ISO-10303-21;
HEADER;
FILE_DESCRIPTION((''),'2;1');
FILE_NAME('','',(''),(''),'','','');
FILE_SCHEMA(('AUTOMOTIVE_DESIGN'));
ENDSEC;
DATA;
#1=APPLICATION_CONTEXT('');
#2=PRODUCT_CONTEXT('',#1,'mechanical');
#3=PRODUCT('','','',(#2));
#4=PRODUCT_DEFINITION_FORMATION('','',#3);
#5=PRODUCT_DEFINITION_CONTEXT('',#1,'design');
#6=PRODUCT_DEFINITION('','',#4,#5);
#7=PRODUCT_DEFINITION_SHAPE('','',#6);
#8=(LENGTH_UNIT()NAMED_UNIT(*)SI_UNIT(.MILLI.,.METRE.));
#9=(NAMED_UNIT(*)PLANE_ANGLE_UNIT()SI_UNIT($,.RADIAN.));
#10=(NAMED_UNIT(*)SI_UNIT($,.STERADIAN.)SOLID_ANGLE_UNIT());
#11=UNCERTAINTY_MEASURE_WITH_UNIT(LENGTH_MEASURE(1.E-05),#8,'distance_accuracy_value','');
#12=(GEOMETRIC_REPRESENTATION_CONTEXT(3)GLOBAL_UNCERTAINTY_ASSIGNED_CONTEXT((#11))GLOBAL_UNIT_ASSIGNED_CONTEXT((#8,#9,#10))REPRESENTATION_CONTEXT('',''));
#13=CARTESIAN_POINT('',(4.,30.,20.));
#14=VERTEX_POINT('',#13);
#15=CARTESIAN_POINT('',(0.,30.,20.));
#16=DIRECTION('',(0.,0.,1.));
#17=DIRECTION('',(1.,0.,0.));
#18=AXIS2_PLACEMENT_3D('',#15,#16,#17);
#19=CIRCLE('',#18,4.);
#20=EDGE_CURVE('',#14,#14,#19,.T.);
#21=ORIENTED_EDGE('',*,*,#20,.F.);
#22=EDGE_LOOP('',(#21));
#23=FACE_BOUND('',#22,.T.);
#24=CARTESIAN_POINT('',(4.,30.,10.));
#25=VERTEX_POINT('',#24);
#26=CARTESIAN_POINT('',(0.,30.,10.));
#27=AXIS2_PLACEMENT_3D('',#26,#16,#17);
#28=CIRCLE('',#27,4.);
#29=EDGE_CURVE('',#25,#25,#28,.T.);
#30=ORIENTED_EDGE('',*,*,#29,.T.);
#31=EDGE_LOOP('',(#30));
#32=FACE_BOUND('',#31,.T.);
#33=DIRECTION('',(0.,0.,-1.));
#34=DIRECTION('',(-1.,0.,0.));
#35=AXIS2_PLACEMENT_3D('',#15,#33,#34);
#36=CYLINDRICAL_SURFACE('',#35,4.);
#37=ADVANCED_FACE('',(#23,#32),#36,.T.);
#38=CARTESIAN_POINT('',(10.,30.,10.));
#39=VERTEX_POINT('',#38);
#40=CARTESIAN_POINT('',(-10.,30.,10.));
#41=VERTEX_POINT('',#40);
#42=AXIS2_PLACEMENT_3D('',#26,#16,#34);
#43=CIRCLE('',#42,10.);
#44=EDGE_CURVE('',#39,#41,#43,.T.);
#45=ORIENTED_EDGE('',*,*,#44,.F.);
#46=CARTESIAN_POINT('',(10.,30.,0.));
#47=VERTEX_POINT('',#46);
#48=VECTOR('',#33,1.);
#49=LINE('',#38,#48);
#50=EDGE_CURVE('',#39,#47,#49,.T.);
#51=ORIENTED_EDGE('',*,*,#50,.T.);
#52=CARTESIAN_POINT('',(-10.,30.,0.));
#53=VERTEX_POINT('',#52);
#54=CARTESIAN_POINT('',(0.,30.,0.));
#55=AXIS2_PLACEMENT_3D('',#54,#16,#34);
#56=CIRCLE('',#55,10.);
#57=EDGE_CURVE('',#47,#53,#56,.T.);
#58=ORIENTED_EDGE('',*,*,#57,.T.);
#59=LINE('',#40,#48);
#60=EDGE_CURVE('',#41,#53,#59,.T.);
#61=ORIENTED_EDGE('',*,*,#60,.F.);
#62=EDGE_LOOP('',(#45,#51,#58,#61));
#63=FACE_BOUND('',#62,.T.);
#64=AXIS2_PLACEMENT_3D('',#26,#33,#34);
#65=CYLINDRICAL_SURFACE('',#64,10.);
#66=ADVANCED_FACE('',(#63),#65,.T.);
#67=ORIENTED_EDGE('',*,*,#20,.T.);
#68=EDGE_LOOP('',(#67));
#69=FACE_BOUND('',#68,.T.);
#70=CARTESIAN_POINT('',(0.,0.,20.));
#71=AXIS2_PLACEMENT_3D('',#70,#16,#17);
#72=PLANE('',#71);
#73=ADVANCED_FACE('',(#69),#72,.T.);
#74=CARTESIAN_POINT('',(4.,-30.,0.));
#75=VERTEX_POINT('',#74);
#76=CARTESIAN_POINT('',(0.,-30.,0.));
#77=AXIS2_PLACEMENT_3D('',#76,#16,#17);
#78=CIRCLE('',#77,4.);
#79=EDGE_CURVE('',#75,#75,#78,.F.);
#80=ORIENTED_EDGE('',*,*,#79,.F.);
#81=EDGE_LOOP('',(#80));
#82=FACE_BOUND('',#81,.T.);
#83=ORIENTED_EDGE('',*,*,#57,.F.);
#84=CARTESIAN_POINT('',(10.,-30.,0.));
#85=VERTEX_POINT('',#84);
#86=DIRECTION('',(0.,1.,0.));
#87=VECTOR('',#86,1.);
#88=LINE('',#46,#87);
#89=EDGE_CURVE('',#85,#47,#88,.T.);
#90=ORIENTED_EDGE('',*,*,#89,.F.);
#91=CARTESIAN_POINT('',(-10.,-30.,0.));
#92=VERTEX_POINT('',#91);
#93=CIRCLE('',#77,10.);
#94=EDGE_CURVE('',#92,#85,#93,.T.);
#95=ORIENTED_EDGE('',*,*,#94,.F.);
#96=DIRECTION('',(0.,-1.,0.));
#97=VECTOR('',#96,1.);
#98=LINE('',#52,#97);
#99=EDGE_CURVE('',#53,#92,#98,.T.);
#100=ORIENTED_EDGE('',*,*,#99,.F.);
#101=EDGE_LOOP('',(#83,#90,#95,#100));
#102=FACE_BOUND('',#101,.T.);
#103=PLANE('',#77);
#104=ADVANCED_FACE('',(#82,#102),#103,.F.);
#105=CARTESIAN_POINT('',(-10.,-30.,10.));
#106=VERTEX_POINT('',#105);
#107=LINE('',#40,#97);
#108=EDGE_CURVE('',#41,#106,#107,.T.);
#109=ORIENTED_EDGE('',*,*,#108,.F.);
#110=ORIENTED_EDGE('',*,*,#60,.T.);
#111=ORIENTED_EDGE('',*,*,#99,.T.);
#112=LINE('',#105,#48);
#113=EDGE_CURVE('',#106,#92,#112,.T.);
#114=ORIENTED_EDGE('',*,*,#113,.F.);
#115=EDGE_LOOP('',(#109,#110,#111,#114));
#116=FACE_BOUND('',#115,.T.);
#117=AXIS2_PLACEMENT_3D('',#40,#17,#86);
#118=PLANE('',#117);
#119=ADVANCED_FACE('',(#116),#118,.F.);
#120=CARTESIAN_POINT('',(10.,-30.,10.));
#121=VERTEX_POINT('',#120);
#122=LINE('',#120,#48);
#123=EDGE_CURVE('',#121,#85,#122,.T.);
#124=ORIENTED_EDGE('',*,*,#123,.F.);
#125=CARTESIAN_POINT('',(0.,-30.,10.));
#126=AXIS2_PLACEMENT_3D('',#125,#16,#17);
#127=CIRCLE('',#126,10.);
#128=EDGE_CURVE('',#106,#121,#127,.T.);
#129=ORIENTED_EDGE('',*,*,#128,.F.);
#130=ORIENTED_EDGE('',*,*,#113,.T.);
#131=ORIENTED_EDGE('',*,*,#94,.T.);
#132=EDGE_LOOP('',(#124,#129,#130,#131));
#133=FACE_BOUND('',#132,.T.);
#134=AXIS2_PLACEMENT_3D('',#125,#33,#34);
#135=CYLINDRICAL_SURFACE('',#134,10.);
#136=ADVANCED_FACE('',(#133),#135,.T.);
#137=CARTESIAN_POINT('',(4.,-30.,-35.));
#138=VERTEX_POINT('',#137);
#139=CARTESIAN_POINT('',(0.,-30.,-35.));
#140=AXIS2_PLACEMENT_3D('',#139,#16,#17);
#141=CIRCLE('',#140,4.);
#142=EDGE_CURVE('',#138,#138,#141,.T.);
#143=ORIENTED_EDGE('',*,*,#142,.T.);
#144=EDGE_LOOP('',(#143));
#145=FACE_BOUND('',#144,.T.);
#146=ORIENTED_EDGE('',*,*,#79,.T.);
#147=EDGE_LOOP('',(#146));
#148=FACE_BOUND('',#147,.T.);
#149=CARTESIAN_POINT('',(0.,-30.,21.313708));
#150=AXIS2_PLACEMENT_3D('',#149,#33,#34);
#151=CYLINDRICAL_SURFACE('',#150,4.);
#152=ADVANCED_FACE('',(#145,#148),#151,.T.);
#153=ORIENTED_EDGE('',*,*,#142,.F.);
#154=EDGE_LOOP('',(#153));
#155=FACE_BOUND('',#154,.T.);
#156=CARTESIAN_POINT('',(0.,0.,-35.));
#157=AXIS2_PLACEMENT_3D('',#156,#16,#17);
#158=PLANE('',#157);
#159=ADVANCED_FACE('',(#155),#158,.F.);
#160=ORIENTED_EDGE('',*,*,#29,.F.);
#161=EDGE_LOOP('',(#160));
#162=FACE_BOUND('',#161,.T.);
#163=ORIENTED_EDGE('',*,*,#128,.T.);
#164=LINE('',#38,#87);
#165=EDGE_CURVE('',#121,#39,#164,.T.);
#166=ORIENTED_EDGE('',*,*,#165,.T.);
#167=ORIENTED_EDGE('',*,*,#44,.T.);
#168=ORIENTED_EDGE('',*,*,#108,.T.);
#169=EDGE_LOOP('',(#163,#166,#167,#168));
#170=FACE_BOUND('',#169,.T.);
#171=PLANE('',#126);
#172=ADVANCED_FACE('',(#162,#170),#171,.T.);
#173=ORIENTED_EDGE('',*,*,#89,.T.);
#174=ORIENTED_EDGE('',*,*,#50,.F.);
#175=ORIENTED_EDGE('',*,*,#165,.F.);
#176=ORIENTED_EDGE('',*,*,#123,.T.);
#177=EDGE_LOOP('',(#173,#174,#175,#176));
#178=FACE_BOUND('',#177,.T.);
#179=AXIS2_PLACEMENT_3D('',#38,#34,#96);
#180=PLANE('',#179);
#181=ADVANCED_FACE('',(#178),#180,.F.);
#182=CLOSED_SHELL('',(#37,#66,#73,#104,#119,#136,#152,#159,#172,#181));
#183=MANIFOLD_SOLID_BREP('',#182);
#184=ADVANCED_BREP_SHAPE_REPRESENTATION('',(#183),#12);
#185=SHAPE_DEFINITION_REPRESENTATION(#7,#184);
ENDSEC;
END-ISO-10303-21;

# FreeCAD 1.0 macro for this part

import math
import FreeCAD as App
import Part
import Sketcher

V = App.Vector
Q = App.Units.Quantity

doc = App.newDocument("Part")
body = doc.addObject("PartDesign::Body", "Body")

# Sketch on XY plane
sketch1 = body.newObject("Sketcher::SketchObject", "Sketch")
sketch1.AttachmentSupport = (doc.getObject("XY_Plane"), [""])
sketch1.MapMode = "FlatFace"
sketch1.addGeometry([
    Part.LineSegment(V(10, -30, 0), V(10, 30, 0)),  # 0
    Part.ArcOfCircle(Part.Circle(V(0, 30, 0), V(0, 0, 1), 10), math.radians(0), math.radians(180)),  # 1
    Part.LineSegment(V(-10, 30, 0), V(-10, -30, 0)),  # 2
    Part.ArcOfCircle(Part.Circle(V(0, -30, 0), V(0, 0, 1), 10), math.radians(180), math.radians(360)),  # 3
    Part.Circle(V(0, -30, 0), V(0, 0, 1), 4),  # 4
    Part.Circle(V(0, 30, 0), V(0, 0, 1), 4),  # 5
], False)
sketch1.addConstraint([
    Sketcher.Constraint("Tangent", 0, 2, 1, 1),
    Sketcher.Constraint("Tangent", 1, 2, 2, 1),
    Sketcher.Constraint("Tangent", 2, 2, 3, 1),
    Sketcher.Constraint("Tangent", 3, 2, 0, 1),
    Sketcher.Constraint("Vertical", 0),
    Sketcher.Constraint("Vertical", 2),
    Sketcher.Constraint("Coincident", 4, 3, 3, 3),
    Sketcher.Constraint("Coincident", 5, 3, 1, 3),
    Sketcher.Constraint("Equal", 4, 5),
    Sketcher.Constraint("Symmetric", 1, 3, 3, 3, -1, 1),
    Sketcher.Constraint("Diameter", 4, Q("8 mm")),
    Sketcher.Constraint("Radius", 1, Q("10 mm")),
    Sketcher.Constraint("DistanceY", 0, 1, 0, 2, Q("60 mm")),
])
pad1 = body.newObject("PartDesign::Pad", "Pad")
pad1.Profile = sketch1
pad1.Length = 10

# Sketch on XY plane
sketch2 = body.newObject("Sketcher::SketchObject", "Sketch001")
sketch2.AttachmentSupport = (doc.getObject("XY_Plane"), [""])
sketch2.MapMode = "FlatFace"
sketch2.addGeometry(Part.Circle(V(0, 30, 0), V(0, 0, 1), 4), False)
sketch2.addConstraint([
    Sketcher.Constraint("PointOnObject", 0, 3, -2),
    Sketcher.Constraint("Diameter", 0, Q("8 mm")),
    Sketcher.Constraint("DistanceY", -1, 1, 0, 3, Q("30 mm")),
])
pad2 = body.newObject("PartDesign::Pad", "Pad001")
pad2.Profile = sketch2
pad2.Length = 20

# Sketch on XY plane
sketch3 = body.newObject("Sketcher::SketchObject", "Sketch002")
sketch3.AttachmentSupport = (doc.getObject("XY_Plane"), [""])
sketch3.MapMode = "FlatFace"
sketch3.AttachmentOffset = App.Placement(V(0, 0, -35), App.Rotation())
sketch3.addGeometry(Part.Circle(V(0, -30, 0), V(0, 0, 1), 4), False)
sketch3.addConstraint([
    Sketcher.Constraint("PointOnObject", 0, 3, -2),
    Sketcher.Constraint("Diameter", 0, Q("8 mm")),
    Sketcher.Constraint("DistanceY", 0, 3, -1, 1, Q("30 mm")),
])
pad3 = body.newObject("PartDesign::Pad", "Pad002")
pad3.Profile = sketch3
pad3.Length = 45

doc.recompute()
